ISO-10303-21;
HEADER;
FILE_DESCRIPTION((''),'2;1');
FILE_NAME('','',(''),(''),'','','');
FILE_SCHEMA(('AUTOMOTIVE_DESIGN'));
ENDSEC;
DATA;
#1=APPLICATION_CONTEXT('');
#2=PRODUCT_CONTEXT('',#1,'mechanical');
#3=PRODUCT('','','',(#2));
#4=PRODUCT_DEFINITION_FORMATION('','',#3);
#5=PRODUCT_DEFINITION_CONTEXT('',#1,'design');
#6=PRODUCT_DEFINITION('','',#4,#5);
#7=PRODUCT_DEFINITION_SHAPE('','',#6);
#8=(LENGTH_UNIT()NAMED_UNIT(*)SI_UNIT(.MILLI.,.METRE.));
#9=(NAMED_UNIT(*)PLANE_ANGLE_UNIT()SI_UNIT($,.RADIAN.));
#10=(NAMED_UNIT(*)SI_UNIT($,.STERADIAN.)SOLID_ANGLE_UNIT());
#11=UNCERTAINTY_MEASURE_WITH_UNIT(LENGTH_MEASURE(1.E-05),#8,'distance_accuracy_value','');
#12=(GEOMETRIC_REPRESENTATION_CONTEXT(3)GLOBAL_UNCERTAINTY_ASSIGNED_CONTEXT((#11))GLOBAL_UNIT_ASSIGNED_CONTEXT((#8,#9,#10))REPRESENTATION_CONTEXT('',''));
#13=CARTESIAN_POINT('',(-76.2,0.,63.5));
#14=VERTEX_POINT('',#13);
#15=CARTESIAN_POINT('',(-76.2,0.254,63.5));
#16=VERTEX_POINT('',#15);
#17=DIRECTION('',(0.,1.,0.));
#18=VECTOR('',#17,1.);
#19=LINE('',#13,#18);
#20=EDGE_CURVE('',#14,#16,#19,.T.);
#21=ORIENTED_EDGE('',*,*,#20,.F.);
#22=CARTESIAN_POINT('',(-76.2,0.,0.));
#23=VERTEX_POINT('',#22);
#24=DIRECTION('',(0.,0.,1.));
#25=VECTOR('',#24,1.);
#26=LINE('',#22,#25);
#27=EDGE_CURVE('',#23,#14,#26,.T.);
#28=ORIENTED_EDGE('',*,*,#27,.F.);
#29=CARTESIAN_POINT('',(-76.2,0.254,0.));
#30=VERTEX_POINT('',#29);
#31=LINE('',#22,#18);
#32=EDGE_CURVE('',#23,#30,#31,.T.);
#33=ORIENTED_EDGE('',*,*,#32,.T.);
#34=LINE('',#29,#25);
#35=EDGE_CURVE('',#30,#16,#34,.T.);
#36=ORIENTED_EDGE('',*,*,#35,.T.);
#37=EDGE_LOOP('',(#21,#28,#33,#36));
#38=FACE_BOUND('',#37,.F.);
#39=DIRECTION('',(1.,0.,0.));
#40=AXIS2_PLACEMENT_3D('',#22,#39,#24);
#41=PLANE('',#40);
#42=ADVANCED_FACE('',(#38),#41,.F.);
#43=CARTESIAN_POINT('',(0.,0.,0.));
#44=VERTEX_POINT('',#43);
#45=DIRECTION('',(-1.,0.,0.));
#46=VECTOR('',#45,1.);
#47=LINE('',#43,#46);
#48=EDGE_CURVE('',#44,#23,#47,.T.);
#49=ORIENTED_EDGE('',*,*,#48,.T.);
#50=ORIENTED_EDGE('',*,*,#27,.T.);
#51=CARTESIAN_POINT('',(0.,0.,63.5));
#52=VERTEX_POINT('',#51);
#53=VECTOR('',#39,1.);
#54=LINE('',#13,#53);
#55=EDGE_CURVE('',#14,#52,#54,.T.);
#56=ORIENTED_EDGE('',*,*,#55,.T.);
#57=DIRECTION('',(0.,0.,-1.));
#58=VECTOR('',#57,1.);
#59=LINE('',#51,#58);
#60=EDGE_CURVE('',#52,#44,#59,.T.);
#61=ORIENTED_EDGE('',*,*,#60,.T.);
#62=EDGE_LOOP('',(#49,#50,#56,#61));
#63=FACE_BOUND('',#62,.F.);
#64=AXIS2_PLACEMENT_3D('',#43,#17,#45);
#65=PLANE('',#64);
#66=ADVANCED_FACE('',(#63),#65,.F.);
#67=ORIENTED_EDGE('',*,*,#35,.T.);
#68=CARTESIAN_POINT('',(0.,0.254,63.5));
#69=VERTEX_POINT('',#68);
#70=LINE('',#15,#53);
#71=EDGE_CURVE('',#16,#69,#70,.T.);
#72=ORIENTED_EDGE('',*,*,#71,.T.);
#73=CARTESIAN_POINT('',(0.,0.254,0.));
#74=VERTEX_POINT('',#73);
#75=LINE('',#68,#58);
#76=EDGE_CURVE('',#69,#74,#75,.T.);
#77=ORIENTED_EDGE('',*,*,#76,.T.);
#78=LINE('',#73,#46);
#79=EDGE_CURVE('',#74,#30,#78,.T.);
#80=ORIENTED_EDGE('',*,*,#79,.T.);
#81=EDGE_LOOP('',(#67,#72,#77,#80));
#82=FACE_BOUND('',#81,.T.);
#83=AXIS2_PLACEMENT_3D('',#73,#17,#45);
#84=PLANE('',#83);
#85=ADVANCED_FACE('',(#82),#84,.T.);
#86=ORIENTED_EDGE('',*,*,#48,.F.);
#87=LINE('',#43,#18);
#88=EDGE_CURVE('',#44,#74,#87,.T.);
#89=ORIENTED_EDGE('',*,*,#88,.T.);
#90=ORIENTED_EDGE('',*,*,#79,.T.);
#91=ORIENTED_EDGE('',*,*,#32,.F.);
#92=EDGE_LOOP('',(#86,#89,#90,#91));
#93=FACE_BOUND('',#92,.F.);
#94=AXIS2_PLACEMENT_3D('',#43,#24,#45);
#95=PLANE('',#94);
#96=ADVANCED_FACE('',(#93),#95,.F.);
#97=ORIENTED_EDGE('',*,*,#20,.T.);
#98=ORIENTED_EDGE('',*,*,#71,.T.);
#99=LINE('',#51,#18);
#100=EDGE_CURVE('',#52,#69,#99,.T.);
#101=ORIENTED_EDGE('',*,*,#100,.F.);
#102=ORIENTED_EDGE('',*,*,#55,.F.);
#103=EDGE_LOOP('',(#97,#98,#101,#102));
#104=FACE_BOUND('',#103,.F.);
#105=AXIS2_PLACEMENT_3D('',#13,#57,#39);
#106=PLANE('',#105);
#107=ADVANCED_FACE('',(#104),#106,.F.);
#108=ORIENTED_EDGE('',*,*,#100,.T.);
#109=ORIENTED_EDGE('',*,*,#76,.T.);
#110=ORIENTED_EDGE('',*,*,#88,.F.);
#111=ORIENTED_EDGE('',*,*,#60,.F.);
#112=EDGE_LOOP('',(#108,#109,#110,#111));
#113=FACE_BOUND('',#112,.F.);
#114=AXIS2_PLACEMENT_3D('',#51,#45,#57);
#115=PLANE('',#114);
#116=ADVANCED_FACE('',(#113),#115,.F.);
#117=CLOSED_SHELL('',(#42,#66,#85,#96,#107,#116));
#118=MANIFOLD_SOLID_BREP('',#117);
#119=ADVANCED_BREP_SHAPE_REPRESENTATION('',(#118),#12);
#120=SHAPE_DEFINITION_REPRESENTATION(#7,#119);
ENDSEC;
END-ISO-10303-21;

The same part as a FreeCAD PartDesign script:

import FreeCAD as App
import Part
import Sketcher

V = App.Vector
Q = App.Units.Quantity

doc = App.newDocument("Part")
body = doc.addObject("PartDesign::Body", "Body")

# Sketch on XZ plane
sketch1 = body.newObject("Sketcher::SketchObject", "Sketch")
sketch1.AttachmentSupport = (doc.getObject("XZ_Plane"), [""])
sketch1.MapMode = "FlatFace"
sketch1.addGeometry([
    Part.LineSegment(V(0, 64, 0), V(0, 0, 0)),
    Part.LineSegment(V(0, 0, 0), V(-76, 0, 0)),
    Part.LineSegment(V(-76, 0, 0), V(-76, 64, 0)),
    Part.LineSegment(V(-76, 64, 0), V(0, 64, 0)),
], False)
sketch1.addConstraint([
    Sketcher.Constraint("Coincident", 0, 2, 1, 1),
    Sketcher.Constraint("Coincident", 1, 2, 2, 1),
    Sketcher.Constraint("Coincident", 2, 2, 3, 1),
    Sketcher.Constraint("Coincident", 3, 2, 0, 1),
    Sketcher.Constraint("Vertical", 0),
    Sketcher.Constraint("Horizontal", 1),
    Sketcher.Constraint("Vertical", 2),
    Sketcher.Constraint("Horizontal", 3),
    Sketcher.Constraint("Coincident", 0, 2, -1, 1),
    Sketcher.Constraint("DistanceX", 1, 2, 1, 1, Q("3 in")),
    Sketcher.Constraint("DistanceY", 0, 2, 0, 1, Q("2.5 in")),
])
pad1 = body.newObject("PartDesign::Pad", "Pad")
pad1.Profile = sketch1
pad1.Length = Q("0.01 in")
pad1.Reversed = True

doc.recompute()
